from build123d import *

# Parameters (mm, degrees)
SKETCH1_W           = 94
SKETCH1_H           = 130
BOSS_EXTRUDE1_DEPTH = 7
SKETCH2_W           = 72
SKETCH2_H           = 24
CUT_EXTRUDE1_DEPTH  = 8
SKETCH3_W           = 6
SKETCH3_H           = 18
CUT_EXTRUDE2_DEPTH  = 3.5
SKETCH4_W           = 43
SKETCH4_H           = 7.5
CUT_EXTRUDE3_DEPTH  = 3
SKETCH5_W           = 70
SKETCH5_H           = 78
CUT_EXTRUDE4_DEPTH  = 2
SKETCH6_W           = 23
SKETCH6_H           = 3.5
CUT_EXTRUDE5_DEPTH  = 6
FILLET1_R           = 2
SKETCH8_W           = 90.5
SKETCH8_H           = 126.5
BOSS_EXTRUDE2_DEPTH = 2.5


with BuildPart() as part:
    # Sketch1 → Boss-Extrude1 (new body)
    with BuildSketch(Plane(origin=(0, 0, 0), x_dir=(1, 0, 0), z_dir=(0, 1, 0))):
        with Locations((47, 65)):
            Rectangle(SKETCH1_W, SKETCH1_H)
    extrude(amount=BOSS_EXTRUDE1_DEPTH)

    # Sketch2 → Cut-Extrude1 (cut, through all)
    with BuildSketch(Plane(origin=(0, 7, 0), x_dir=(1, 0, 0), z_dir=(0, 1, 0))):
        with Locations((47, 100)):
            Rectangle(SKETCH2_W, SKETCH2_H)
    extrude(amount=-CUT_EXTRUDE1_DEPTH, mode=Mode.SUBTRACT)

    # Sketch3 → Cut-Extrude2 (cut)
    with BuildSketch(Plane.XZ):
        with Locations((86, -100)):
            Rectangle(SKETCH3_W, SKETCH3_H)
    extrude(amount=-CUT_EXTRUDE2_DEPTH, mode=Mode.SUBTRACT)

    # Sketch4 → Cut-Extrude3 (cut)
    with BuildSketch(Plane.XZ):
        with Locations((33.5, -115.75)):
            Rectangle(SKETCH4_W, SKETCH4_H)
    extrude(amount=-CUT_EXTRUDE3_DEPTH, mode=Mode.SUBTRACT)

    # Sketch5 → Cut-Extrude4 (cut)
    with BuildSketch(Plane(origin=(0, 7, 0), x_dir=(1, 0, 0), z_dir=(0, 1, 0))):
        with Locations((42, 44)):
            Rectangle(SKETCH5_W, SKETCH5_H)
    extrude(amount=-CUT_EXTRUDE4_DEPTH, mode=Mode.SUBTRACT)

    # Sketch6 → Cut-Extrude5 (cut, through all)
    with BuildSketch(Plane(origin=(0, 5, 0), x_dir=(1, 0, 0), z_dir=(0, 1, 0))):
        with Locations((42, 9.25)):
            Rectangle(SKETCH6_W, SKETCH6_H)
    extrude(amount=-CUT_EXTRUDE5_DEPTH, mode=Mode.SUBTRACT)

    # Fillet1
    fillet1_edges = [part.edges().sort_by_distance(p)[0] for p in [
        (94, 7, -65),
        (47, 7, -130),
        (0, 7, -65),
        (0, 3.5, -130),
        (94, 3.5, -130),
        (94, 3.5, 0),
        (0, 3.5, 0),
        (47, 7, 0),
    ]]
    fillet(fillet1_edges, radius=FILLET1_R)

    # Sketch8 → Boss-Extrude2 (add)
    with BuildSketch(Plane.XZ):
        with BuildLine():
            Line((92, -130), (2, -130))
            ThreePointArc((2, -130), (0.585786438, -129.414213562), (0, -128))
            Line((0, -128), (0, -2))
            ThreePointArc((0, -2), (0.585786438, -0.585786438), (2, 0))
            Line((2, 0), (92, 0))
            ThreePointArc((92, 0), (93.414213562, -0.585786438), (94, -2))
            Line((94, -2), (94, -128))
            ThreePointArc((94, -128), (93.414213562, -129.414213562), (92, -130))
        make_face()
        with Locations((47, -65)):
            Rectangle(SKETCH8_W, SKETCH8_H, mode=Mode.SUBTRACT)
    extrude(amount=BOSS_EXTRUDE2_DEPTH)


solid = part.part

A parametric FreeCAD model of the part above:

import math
import FreeCAD as App
import Part
import Sketcher
from FreeCAD import Vector


def edges_at(feature, points):
    """Names of the edges that pass closest to the given points."""
    edges = feature.Shape.Edges
    near = lambda p: min(range(len(edges)), key=lambda i: edges[i].distToShape(Part.Vertex(*p))[0])
    return sorted({f"Edge{near(p) + 1}" for p in points})


def add_polygon(sketch, points):
    """Adds a closed chain of lines whose ends are joined by coincident constraints."""
    first, n = sketch.GeometryCount, len(points)
    for a, b in zip(points, points[1:] + points[:1]):
        sketch.addGeometry(Part.LineSegment(App.Vector(*a, 0), App.Vector(*b, 0)), False)
    for i in range(n):
        sketch.addConstraint(Sketcher.Constraint("Coincident", first + i, 2, first + (i + 1) % n, 1))

doc = App.newDocument("Part")
body = doc.addObject("PartDesign::Body", "Body")

sketch1 = doc.addObject("Sketcher::SketchObject", "Sketch")
body.addObject(sketch1)
sketch1.AttachmentSupport = (doc.XZ_Plane, [""])
sketch1.MapMode = "FlatFace"
add_polygon(sketch1, [(0, -130), (0, 0), (94, 0), (94, -130)])
sketch1.addConstraint(Sketcher.Constraint("Vertical", 0))
sketch1.addConstraint(Sketcher.Constraint("Horizontal", 1))
sketch1.addConstraint(Sketcher.Constraint("Vertical", 2))
sketch1.addConstraint(Sketcher.Constraint("Horizontal", 3))
sketch1.addConstraint(Sketcher.Constraint("Coincident", 0, 2, -1, 1))
sketch1.addConstraint(Sketcher.Constraint("DistanceX", 1, 1, 1, 2, 94.0))
sketch1.addConstraint(Sketcher.Constraint("DistanceY", 0, 1, 0, 2, 130.0))
pad1 = doc.addObject("PartDesign::Pad", "Pad")
body.addObject(pad1)
pad1.Profile = sketch1
pad1.Length = 7
pad1.Reversed = True

sketch2 = doc.addObject("Sketcher::SketchObject", "Sketch001")
body.addObject(sketch2)
sketch2.AttachmentSupport = (doc.XZ_Plane, [""])
sketch2.MapMode = "FlatFace"
sketch2.AttachmentOffset = App.Placement(Vector(0, 0, -7), App.Rotation())
add_polygon(sketch2, [(11, -112), (11, -88), (83, -88), (83, -112)])
sketch2.addConstraint(Sketcher.Constraint("Vertical", 0))
sketch2.addConstraint(Sketcher.Constraint("Horizontal", 1))
sketch2.addConstraint(Sketcher.Constraint("Vertical", 2))
sketch2.addConstraint(Sketcher.Constraint("Horizontal", 3))
sketch2.addConstraint(Sketcher.Constraint("DistanceX", 1, 1, 1, 2, 72.0))
sketch2.addConstraint(Sketcher.Constraint("DistanceY", 0, 1, 0, 2, 24.0))
sketch2.addConstraint(Sketcher.Constraint("DistanceX", -1, 1, 0, 2, 11.0))
sketch2.addConstraint(Sketcher.Constraint("DistanceY", 0, 2, -1, 1, 88.0))
pocket1 = doc.addObject("PartDesign::Pocket", "Pocket")
body.addObject(pocket1)
pocket1.Profile = sketch2
pocket1.Type = "ThroughAll"
pocket1.Reversed = True

sketch3 = doc.addObject("Sketcher::SketchObject", "Sketch002")
body.addObject(sketch3)
sketch3.AttachmentSupport = (doc.XZ_Plane, [""])
sketch3.MapMode = "FlatFace"
add_polygon(sketch3, [(83, -91), (83, -109), (89, -109), (89, -91)])
sketch3.addConstraint(Sketcher.Constraint("Vertical", 0))
sketch3.addConstraint(Sketcher.Constraint("Horizontal", 1))
sketch3.addConstraint(Sketcher.Constraint("Vertical", 2))
sketch3.addConstraint(Sketcher.Constraint("Horizontal", 3))
sketch3.addConstraint(Sketcher.Constraint("DistanceX", 1, 1, 1, 2, 6.0))
sketch3.addConstraint(Sketcher.Constraint("DistanceY", 0, 2, 0, 1, 18.0))
sketch3.addConstraint(Sketcher.Constraint("DistanceX", -1, 1, 0, 2, 83.0))
sketch3.addConstraint(Sketcher.Constraint("DistanceY", 0, 2, -1, 1, 109.0))
pocket2 = doc.addObject("PartDesign::Pocket", "Pocket001")
body.addObject(pocket2)
pocket2.Profile = sketch3
pocket2.Length = 3.5

sketch4 = doc.addObject("Sketcher::SketchObject", "Sketch003")
body.addObject(sketch4)
sketch4.AttachmentSupport = (doc.XZ_Plane, [""])
sketch4.MapMode = "FlatFace"
add_polygon(sketch4, [(12, -112), (12, -120), (55, -120), (55, -112)])
sketch4.addConstraint(Sketcher.Constraint("Vertical", 0))
sketch4.addConstraint(Sketcher.Constraint("Horizontal", 1))
sketch4.addConstraint(Sketcher.Constraint("Vertical", 2))
sketch4.addConstraint(Sketcher.Constraint("Horizontal", 3))
sketch4.addConstraint(Sketcher.Constraint("DistanceX", 1, 1, 1, 2, 43.0))
sketch4.addConstraint(Sketcher.Constraint("DistanceY", 0, 2, 0, 1, 7.5))
sketch4.addConstraint(Sketcher.Constraint("DistanceX", -1, 1, 0, 2, 12.0))
sketch4.addConstraint(Sketcher.Constraint("DistanceY", 2, 2, -1, 1, 112.0))
pocket3 = doc.addObject("PartDesign::Pocket", "Pocket002")
body.addObject(pocket3)
pocket3.Profile = sketch4
pocket3.Length = 3

sketch5 = doc.addObject("Sketcher::SketchObject", "Sketch004")
body.addObject(sketch5)
sketch5.AttachmentSupport = (doc.XZ_Plane, [""])
sketch5.MapMode = "FlatFace"
sketch5.AttachmentOffset = App.Placement(Vector(0, 0, -7), App.Rotation())
add_polygon(sketch5, [(7, -83), (7, -5), (77, -5), (77, -83)])
sketch5.addConstraint(Sketcher.Constraint("Vertical", 0))
sketch5.addConstraint(Sketcher.Constraint("Horizontal", 1))
sketch5.addConstraint(Sketcher.Constraint("Vertical", 2))
sketch5.addConstraint(Sketcher.Constraint("Horizontal", 3))
sketch5.addConstraint(Sketcher.Constraint("DistanceX", 1, 1, 1, 2, 70.0))
sketch5.addConstraint(Sketcher.Constraint("DistanceY", 0, 1, 0, 2, 78.0))
sketch5.addConstraint(Sketcher.Constraint("DistanceX", -1, 1, 0, 2, 7.0))
sketch5.addConstraint(Sketcher.Constraint("DistanceY", 0, 2, -1, 1, 5.0))
pocket4 = doc.addObject("PartDesign::Pocket", "Pocket003")
body.addObject(pocket4)
pocket4.Profile = sketch5
pocket4.Length = 2
pocket4.Reversed = True

sketch6 = doc.addObject("Sketcher::SketchObject", "Sketch005")
body.addObject(sketch6)
sketch6.AttachmentSupport = (doc.XZ_Plane, [""])
sketch6.MapMode = "FlatFace"
sketch6.AttachmentOffset = App.Placement(Vector(0, 0, -5), App.Rotation())
add_polygon(sketch6, [(30.5, -11), (30.5, -7.5), (53.5, -7.5), (53.5, -11)])
sketch6.addConstraint(Sketcher.Constraint("Vertical", 0))
sketch6.addConstraint(Sketcher.Constraint("Horizontal", 1))
sketch6.addConstraint(Sketcher.Constraint("Vertical", 2))
sketch6.addConstraint(Sketcher.Constraint("Horizontal", 3))
sketch6.addConstraint(Sketcher.Constraint("DistanceX", 1, 1, 1, 2, 23.0))
sketch6.addConstraint(Sketcher.Constraint("DistanceY", 0, 1, 0, 2, 3.5))
sketch6.addConstraint(Sketcher.Constraint("DistanceY", 2, 2, -1, 1, 11.0))
sketch6.addConstraint(Sketcher.Constraint("DistanceX", -1, 1, 0, 2, 30.5))
pocket5 = doc.addObject("PartDesign::Pocket", "Pocket004")
body.addObject(pocket5)
pocket5.Profile = sketch6
pocket5.Type = "ThroughAll"
pocket5.Reversed = True
doc.recompute()

fillet = doc.addObject("PartDesign::Fillet", "Fillet")
body.addObject(fillet)
fillet.Base = (pocket5, edges_at(pocket5, [
    (94, 7, -65),
    (47, 7, -130),
    (0, 7, -65),
    (0, 3.5, -130),
    (94, 3.5, -130),
    (94, 3.5, 0),
    (0, 3.5, 0),
    (47, 7, 0),
]))
fillet.Radius = 2

sketch7 = doc.addObject("Sketcher::SketchObject", "Sketch006")
body.addObject(sketch7)
sketch7.AttachmentSupport = (doc.XZ_Plane, [""])
sketch7.MapMode = "FlatFace"
sketch7.addGeometry(Part.LineSegment(Vector(2, -130, 0), Vector(92, -130, 0)), False)
sketch7.addGeometry(Part.ArcOfCircle(Part.Circle(Vector(92, -128, 0), Vector(0, 0, 1), 2), math.radians(-90), math.radians(0)), False)
sketch7.addGeometry(Part.LineSegment(Vector(94, -128, 0), Vector(94, -2, 0)), False)
sketch7.addGeometry(Part.ArcOfCircle(Part.Circle(Vector(92, -2, 0), Vector(0, 0, 1), 2), math.radians(0), math.radians(90)), False)
sketch7.addGeometry(Part.LineSegment(Vector(92, 0, 0), Vector(2, 0, 0)), False)
sketch7.addGeometry(Part.ArcOfCircle(Part.Circle(Vector(2, -2, 0), Vector(0, 0, 1), 2), math.radians(90), math.radians(180)), False)
sketch7.addGeometry(Part.LineSegment(Vector(0, -2, 0), Vector(0, -128, 0)), False)
sketch7.addGeometry(Part.ArcOfCircle(Part.Circle(Vector(2, -128, 0), Vector(0, 0, 1), 2), math.radians(-180), math.radians(-90)), False)
add_polygon(sketch7, [(1.8, -128.2), (1.8, -1.8), (92.2, -1.8), (92.2, -128.2)])
sketch7.addConstraint(Sketcher.Constraint("Tangent", 0, 2, 1, 1))
sketch7.addConstraint(Sketcher.Constraint("Tangent", 1, 2, 2, 1))
sketch7.addConstraint(Sketcher.Constraint("Tangent", 2, 2, 3, 1))
sketch7.addConstraint(Sketcher.Constraint("Tangent", 3, 2, 4, 1))
sketch7.addConstraint(Sketcher.Constraint("Tangent", 4, 2, 5, 1))
sketch7.addConstraint(Sketcher.Constraint("Tangent", 5, 2, 6, 1))
sketch7.addConstraint(Sketcher.Constraint("Tangent", 6, 2, 7, 1))
sketch7.addConstraint(Sketcher.Constraint("Tangent", 7, 2, 0, 1))
sketch7.addConstraint(Sketcher.Constraint("Horizontal", 0))
sketch7.addConstraint(Sketcher.Constraint("Vertical", 2))
sketch7.addConstraint(Sketcher.Constraint("Horizontal", 4))
sketch7.addConstraint(Sketcher.Constraint("Vertical", 6))
sketch7.addConstraint(Sketcher.Constraint("Vertical", 8))
sketch7.addConstraint(Sketcher.Constraint("Horizontal", 9))
sketch7.addConstraint(Sketcher.Constraint("Vertical", 10))
sketch7.addConstraint(Sketcher.Constraint("Horizontal", 11))
sketch7.addConstraint(Sketcher.Constraint("Equal", 1, 3))
sketch7.addConstraint(Sketcher.Constraint("Equal", 3, 5))
sketch7.addConstraint(Sketcher.Constraint("Equal", 5, 7))
sketch7.addConstraint(Sketcher.Constraint("PointOnObject", 3, 2, -1))
sketch7.addConstraint(Sketcher.Constraint("PointOnObject", 5, 2, -2))
sketch7.addConstraint(Sketcher.Constraint("Radius", 1, 2.0))
sketch7.addConstraint(Sketcher.Constraint("DistanceX", 0, 1, 0, 2, 90.0))
sketch7.addConstraint(Sketcher.Constraint("DistanceY", 2, 1, 2, 2, 126.0))
sketch7.addConstraint(Sketcher.Constraint("DistanceX", 9, 1, 9, 2, 90.5))
sketch7.addConstraint(Sketcher.Constraint("DistanceY", 8, 1, 8, 2, 126.5))
sketch7.addConstraint(Sketcher.Constraint("DistanceX", -1, 1, 8, 2, 1.75))
sketch7.addConstraint(Sketcher.Constraint("DistanceY", 8, 2, -1, 1, 1.75))
pad2 = doc.addObject("PartDesign::Pad", "Pad001")
body.addObject(pad2)
pad2.Profile = sketch7
pad2.Length = 2.5

doc.recompute()
